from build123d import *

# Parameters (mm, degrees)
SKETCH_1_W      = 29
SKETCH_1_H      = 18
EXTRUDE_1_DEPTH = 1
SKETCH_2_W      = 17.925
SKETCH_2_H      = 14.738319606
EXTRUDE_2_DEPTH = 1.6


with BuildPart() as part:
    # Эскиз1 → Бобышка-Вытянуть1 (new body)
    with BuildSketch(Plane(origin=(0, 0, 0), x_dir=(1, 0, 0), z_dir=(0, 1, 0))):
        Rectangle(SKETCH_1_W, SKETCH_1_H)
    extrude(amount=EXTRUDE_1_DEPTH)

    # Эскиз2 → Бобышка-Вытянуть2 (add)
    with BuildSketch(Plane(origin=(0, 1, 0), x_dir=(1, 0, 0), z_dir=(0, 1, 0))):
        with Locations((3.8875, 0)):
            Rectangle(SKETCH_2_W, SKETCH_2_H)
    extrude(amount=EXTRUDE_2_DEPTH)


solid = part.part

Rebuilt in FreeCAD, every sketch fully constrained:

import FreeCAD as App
import Part
import Sketcher

V = App.Vector

doc = App.newDocument("Part")
body = doc.addObject("PartDesign::Body", "Body")

# Sketch on XZ plane
sketch1 = body.newObject("Sketcher::SketchObject", "Sketch")
sketch1.AttachmentSupport = (doc.getObject("XZ_Plane"), [""])
sketch1.MapMode = "FlatFace"
sketch1.addGeometry(Part.LineSegment(V(-14, -9, 0), V(-14, 9, 0)), False)
sketch1.addGeometry(Part.LineSegment(V(-14, 9, 0), V(14, 9, 0)), False)
sketch1.addGeometry(Part.LineSegment(V(14, 9, 0), V(14, -9, 0)), False)
sketch1.addGeometry(Part.LineSegment(V(14, -9, 0), V(-14, -9, 0)), False)
sketch1.addConstraint(Sketcher.Constraint("Coincident", 0, 2, 1, 1))
sketch1.addConstraint(Sketcher.Constraint("Coincident", 1, 2, 2, 1))
sketch1.addConstraint(Sketcher.Constraint("Coincident", 2, 2, 3, 1))
sketch1.addConstraint(Sketcher.Constraint("Coincident", 3, 2, 0, 1))
sketch1.addConstraint(Sketcher.Constraint("Vertical", 0))
sketch1.addConstraint(Sketcher.Constraint("Horizontal", 1))
sketch1.addConstraint(Sketcher.Constraint("Vertical", 2))
sketch1.addConstraint(Sketcher.Constraint("Horizontal", 3))
sketch1.addConstraint(Sketcher.Constraint("Symmetric", 0, 2, 2, 2, -1, 1))
sketch1.addConstraint(Sketcher.Constraint("DistanceX", 1, 1, 1, 2, 29.0))
sketch1.addConstraint(Sketcher.Constraint("DistanceY", 0, 1, 0, 2, 18.0))
pad1 = body.newObject("PartDesign::Pad", "Pad")
pad1.Profile = sketch1
pad1.Length = 1
pad1.Reversed = True

# Sketch on XZ plane
sketch2 = body.newObject("Sketcher::SketchObject", "Sketch001")
sketch2.AttachmentSupport = (doc.getObject("XZ_Plane"), [""])
sketch2.MapMode = "FlatFace"
sketch2.AttachmentOffset = App.Placement(V(0, 0, -1), App.Rotation())
sketch2.addGeometry(Part.LineSegment(V(-5, -7, 0), V(-5, 7, 0)), False)
sketch2.addGeometry(Part.LineSegment(V(-5, 7, 0), V(13, 7, 0)), False)
sketch2.addGeometry(Part.LineSegment(V(13, 7, 0), V(13, -7, 0)), False)
sketch2.addGeometry(Part.LineSegment(V(13, -7, 0), V(-5, -7, 0)), False)
sketch2.addConstraint(Sketcher.Constraint("Coincident", 0, 2, 1, 1))
sketch2.addConstraint(Sketcher.Constraint("Coincident", 1, 2, 2, 1))
sketch2.addConstraint(Sketcher.Constraint("Coincident", 2, 2, 3, 1))
sketch2.addConstraint(Sketcher.Constraint("Coincident", 3, 2, 0, 1))
sketch2.addConstraint(Sketcher.Constraint("Vertical", 0))
sketch2.addConstraint(Sketcher.Constraint("Horizontal", 1))
sketch2.addConstraint(Sketcher.Constraint("Vertical", 2))
sketch2.addConstraint(Sketcher.Constraint("Horizontal", 3))
sketch2.addConstraint(Sketcher.Constraint("DistanceX", 1, 1, 1, 2, 17.925))
sketch2.addConstraint(Sketcher.Constraint("DistanceX", -1, 1, 1, 2, 12.85))
sketch2.addConstraint(Sketcher.Constraint("DistanceY", 0, 1, 0, 2, 14.73832))
sketch2.addConstraint(Sketcher.Constraint("DistanceY", -1, 1, 0, 2, 7.36916))
pad2 = body.newObject("PartDesign::Pad", "Pad001")
pad2.Profile = sketch2
pad2.Length = 1.6
pad2.Reversed = True

doc.recompute()
